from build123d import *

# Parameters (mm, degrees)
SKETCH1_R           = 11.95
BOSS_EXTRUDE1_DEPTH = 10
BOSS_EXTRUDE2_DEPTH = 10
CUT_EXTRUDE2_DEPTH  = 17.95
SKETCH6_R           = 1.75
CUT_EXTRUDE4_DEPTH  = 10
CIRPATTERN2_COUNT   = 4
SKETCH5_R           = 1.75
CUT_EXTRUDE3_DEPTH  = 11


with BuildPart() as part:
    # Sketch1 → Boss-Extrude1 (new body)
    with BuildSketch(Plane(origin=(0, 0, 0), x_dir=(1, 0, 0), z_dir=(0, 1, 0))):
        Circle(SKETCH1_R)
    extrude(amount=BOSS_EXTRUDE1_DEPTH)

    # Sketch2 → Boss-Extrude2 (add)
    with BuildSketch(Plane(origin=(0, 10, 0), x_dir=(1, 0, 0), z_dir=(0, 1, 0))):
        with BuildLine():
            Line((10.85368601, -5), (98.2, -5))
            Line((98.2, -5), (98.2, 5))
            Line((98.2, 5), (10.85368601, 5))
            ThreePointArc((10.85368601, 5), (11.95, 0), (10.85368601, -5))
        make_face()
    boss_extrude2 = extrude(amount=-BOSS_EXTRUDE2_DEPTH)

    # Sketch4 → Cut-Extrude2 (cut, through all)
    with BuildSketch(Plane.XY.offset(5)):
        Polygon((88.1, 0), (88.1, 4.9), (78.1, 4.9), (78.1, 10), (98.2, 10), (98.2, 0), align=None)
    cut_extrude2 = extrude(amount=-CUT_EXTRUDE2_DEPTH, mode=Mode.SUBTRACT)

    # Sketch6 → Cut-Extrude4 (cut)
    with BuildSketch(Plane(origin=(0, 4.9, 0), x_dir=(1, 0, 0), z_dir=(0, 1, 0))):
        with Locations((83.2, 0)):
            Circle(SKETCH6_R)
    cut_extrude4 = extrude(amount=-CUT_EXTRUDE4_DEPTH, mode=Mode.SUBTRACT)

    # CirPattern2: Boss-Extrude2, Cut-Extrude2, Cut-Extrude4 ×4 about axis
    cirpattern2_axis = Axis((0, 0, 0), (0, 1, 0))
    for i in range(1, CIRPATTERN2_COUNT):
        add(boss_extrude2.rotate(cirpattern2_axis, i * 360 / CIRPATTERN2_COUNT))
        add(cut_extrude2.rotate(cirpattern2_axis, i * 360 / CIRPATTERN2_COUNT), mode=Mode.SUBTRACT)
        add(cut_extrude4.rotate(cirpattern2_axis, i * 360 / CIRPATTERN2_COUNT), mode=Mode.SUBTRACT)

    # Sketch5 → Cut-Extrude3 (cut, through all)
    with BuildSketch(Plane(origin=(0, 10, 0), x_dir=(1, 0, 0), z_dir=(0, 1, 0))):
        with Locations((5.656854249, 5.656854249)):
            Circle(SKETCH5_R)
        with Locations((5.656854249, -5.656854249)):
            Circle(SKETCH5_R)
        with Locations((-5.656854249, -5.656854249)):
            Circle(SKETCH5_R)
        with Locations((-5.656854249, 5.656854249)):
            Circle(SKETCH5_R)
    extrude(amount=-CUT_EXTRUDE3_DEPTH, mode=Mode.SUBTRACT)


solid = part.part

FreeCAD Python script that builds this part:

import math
import FreeCAD as App
import Part
import Sketcher

V = App.Vector
Q = App.Units.Quantity

doc = App.newDocument("Part")
body = doc.addObject("PartDesign::Body", "Body")

sketch1 = body.newObject("Sketcher::SketchObject", "Sketch")
sketch1.AttachmentSupport = (doc.getObject("XZ_Plane"), [""])
sketch1.MapMode = "FlatFace"
sketch1.addGeometry(Part.Circle(V(0, 0, 0), V(0, 0, 1), 12), False)
sketch1.addConstraint([
    Sketcher.Constraint("Coincident", 0, 3, -1, 1),
    Sketcher.Constraint("Diameter", 0, Q("23.9 mm")),
])
pad1 = body.newObject("PartDesign::Pad", "Pad")
pad1.Profile = sketch1
pad1.Length = 10
pad1.Reversed = True

sketch2 = body.newObject("Sketcher::SketchObject", "Sketch001")
sketch2.AttachmentSupport = (doc.getObject("XZ_Plane"), [""])
sketch2.MapMode = "FlatFace"
sketch2.AttachmentOffset = App.Placement(V(0, 0, -10), App.Rotation())
sketch2.addGeometry([
    Part.LineSegment(V(11, 5, 0), V(98, 5, 0)),
    Part.LineSegment(V(98, 5, 0), V(98, -5, 0)),
    Part.LineSegment(V(98, -5, 0), V(11, -5, 0)),
    Part.ArcOfCircle(Part.Circle(V(0, 0, 0), V(0, 0, 1), 12), math.radians(-25), math.radians(25)),
], False)
sketch2.addConstraint([
    Sketcher.Constraint("Coincident", 0, 2, 1, 1),
    Sketcher.Constraint("Coincident", 1, 2, 2, 1),
    Sketcher.Constraint("Coincident", 2, 2, 3, 1),
    Sketcher.Constraint("Coincident", 3, 2, 0, 1),
    Sketcher.Constraint("Horizontal", 0),
    Sketcher.Constraint("Vertical", 1),
    Sketcher.Constraint("Horizontal", 2),
    Sketcher.Constraint("Coincident", 3, 3, -1, 1),
    Sketcher.Constraint("Vertical", 2, 2, 3, 2),
    Sketcher.Constraint("DistanceY", 1, 2, 1, 1, Q("10 mm")),
    Sketcher.Constraint("Radius", 3, Q("11.95 mm")),
    Sketcher.Constraint("DistanceX", -1, 1, 0, 2, Q("98.2 mm")),
])
pad2 = body.newObject("PartDesign::Pad", "Pad001")
pad2.Profile = sketch2
pad2.Length = 10

sketch3 = body.newObject("Sketcher::SketchObject", "Sketch002")
sketch3.AttachmentSupport = (doc.getObject("XY_Plane"), [""])
sketch3.MapMode = "FlatFace"
sketch3.AttachmentOffset = App.Placement(V(0, 0, 5), App.Rotation())
sketch3.addGeometry([
    Part.LineSegment(V(88.1, 4.9, 0), V(88.1, 0, 0)),
    Part.LineSegment(V(88.1, 0, 0), V(98.2, 0, 0)),
    Part.LineSegment(V(98.2, 0, 0), V(98.2, 10, 0)),
    Part.LineSegment(V(98.2, 10, 0), V(78.1, 10, 0)),
    Part.LineSegment(V(78.1, 10, 0), V(78.1, 4.9, 0)),
    Part.LineSegment(V(78.1, 4.9, 0), V(88.1, 4.9, 0)),
], False)
sketch3.addConstraint([
    Sketcher.Constraint("Coincident", 0, 2, 1, 1),
    Sketcher.Constraint("Coincident", 1, 2, 2, 1),
    Sketcher.Constraint("Coincident", 2, 2, 3, 1),
    Sketcher.Constraint("Coincident", 3, 2, 4, 1),
    Sketcher.Constraint("Coincident", 4, 2, 5, 1),
    Sketcher.Constraint("Coincident", 5, 2, 0, 1),
    Sketcher.Constraint("Vertical", 0),
    Sketcher.Constraint("Horizontal", 1),
    Sketcher.Constraint("Vertical", 2),
    Sketcher.Constraint("Horizontal", 3),
    Sketcher.Constraint("Vertical", 4),
    Sketcher.Constraint("Horizontal", 5),
    Sketcher.Constraint("PointOnObject", 0, 2, -1),
    Sketcher.Constraint("Equal", 5, 2),
    Sketcher.Constraint("DistanceX", 5, 1, 5, 2, Q("10 mm")),
    Sketcher.Constraint("DistanceX", 1, 1, 1, 2, Q("10.1 mm")),
    Sketcher.Constraint("DistanceY", 0, 2, 0, 1, Q("4.9 mm")),
    Sketcher.Constraint("DistanceX", -1, 1, 0, 2, Q("88.1 mm")),
])
pocket1 = body.newObject("PartDesign::Pocket", "Pocket")
pocket1.Profile = sketch3
pocket1.Type = "ThroughAll"

sketch4 = body.newObject("Sketcher::SketchObject", "Sketch003")
sketch4.AttachmentSupport = (doc.getObject("XZ_Plane"), [""])
sketch4.MapMode = "FlatFace"
sketch4.AttachmentOffset = App.Placement(V(0, 0, -4.9), App.Rotation())
sketch4.addGeometry(Part.Circle(V(83.2, 0, 0), V(0, 0, 1), 1.8), False)
sketch4.addConstraint([
    Sketcher.Constraint("PointOnObject", 0, 3, -1),
    Sketcher.Constraint("Diameter", 0, Q("3.5 mm")),
    Sketcher.Constraint("DistanceX", -1, 1, 0, 3, Q("83.2 mm")),
])
pocket2 = body.newObject("PartDesign::Pocket", "Pocket001")
pocket2.Profile = sketch4
pocket2.Length = 10
pocket2.Reversed = True
doc.recompute()

polarpattern = body.newObject("PartDesign::PolarPattern", "PolarPattern")
polarpattern.Originals = [pad2, pocket1, pocket2]
polarpattern.Axis = (doc.getObject("Y_Axis"), [""])
polarpattern.Angle = 360
polarpattern.Occurrences = 4
body.Tip = polarpattern

sketch5 = body.newObject("Sketcher::SketchObject", "Sketch004")
sketch5.AttachmentSupport = (doc.getObject("XZ_Plane"), [""])
sketch5.MapMode = "FlatFace"
sketch5.AttachmentOffset = App.Placement(V(0, 0, -10), App.Rotation())
sketch5.addGeometry([
    Part.Circle(V(5.7, -5.7, 0), V(0, 0, 1), 1.8),
    Part.Circle(V(5.7, 5.7, 0), V(0, 0, 1), 1.8),
    Part.Circle(V(-5.7, 5.7, 0), V(0, 0, 1), 1.8),
    Part.Circle(V(-5.7, -5.7, 0), V(0, 0, 1), 1.8),
], False)
sketch5.addConstraint([
    Sketcher.Constraint("Equal", 0, 1),
    Sketcher.Constraint("Equal", 1, 2),
    Sketcher.Constraint("Equal", 2, 3),
    Sketcher.Constraint("Symmetric", 0, 3, 2, 3, -1, 1),
    Sketcher.Constraint("Symmetric", 1, 3, 3, 3, -1, 1),
    Sketcher.Constraint("Symmetric", 1, 3, 2, 3, -2),
    Sketcher.Constraint("Diameter", 0, Q("3.5 mm")),
    Sketcher.Constraint("DistanceY", 0, 3, 1, 3, Q("11.313708 mm")),
    Sketcher.Constraint("DistanceX", 2, 3, 1, 3, Q("11.313708 mm")),
])
pocket3 = body.newObject("PartDesign::Pocket", "Pocket002")
pocket3.Profile = sketch5
pocket3.Type = "ThroughAll"
pocket3.Reversed = True

doc.recompute()
